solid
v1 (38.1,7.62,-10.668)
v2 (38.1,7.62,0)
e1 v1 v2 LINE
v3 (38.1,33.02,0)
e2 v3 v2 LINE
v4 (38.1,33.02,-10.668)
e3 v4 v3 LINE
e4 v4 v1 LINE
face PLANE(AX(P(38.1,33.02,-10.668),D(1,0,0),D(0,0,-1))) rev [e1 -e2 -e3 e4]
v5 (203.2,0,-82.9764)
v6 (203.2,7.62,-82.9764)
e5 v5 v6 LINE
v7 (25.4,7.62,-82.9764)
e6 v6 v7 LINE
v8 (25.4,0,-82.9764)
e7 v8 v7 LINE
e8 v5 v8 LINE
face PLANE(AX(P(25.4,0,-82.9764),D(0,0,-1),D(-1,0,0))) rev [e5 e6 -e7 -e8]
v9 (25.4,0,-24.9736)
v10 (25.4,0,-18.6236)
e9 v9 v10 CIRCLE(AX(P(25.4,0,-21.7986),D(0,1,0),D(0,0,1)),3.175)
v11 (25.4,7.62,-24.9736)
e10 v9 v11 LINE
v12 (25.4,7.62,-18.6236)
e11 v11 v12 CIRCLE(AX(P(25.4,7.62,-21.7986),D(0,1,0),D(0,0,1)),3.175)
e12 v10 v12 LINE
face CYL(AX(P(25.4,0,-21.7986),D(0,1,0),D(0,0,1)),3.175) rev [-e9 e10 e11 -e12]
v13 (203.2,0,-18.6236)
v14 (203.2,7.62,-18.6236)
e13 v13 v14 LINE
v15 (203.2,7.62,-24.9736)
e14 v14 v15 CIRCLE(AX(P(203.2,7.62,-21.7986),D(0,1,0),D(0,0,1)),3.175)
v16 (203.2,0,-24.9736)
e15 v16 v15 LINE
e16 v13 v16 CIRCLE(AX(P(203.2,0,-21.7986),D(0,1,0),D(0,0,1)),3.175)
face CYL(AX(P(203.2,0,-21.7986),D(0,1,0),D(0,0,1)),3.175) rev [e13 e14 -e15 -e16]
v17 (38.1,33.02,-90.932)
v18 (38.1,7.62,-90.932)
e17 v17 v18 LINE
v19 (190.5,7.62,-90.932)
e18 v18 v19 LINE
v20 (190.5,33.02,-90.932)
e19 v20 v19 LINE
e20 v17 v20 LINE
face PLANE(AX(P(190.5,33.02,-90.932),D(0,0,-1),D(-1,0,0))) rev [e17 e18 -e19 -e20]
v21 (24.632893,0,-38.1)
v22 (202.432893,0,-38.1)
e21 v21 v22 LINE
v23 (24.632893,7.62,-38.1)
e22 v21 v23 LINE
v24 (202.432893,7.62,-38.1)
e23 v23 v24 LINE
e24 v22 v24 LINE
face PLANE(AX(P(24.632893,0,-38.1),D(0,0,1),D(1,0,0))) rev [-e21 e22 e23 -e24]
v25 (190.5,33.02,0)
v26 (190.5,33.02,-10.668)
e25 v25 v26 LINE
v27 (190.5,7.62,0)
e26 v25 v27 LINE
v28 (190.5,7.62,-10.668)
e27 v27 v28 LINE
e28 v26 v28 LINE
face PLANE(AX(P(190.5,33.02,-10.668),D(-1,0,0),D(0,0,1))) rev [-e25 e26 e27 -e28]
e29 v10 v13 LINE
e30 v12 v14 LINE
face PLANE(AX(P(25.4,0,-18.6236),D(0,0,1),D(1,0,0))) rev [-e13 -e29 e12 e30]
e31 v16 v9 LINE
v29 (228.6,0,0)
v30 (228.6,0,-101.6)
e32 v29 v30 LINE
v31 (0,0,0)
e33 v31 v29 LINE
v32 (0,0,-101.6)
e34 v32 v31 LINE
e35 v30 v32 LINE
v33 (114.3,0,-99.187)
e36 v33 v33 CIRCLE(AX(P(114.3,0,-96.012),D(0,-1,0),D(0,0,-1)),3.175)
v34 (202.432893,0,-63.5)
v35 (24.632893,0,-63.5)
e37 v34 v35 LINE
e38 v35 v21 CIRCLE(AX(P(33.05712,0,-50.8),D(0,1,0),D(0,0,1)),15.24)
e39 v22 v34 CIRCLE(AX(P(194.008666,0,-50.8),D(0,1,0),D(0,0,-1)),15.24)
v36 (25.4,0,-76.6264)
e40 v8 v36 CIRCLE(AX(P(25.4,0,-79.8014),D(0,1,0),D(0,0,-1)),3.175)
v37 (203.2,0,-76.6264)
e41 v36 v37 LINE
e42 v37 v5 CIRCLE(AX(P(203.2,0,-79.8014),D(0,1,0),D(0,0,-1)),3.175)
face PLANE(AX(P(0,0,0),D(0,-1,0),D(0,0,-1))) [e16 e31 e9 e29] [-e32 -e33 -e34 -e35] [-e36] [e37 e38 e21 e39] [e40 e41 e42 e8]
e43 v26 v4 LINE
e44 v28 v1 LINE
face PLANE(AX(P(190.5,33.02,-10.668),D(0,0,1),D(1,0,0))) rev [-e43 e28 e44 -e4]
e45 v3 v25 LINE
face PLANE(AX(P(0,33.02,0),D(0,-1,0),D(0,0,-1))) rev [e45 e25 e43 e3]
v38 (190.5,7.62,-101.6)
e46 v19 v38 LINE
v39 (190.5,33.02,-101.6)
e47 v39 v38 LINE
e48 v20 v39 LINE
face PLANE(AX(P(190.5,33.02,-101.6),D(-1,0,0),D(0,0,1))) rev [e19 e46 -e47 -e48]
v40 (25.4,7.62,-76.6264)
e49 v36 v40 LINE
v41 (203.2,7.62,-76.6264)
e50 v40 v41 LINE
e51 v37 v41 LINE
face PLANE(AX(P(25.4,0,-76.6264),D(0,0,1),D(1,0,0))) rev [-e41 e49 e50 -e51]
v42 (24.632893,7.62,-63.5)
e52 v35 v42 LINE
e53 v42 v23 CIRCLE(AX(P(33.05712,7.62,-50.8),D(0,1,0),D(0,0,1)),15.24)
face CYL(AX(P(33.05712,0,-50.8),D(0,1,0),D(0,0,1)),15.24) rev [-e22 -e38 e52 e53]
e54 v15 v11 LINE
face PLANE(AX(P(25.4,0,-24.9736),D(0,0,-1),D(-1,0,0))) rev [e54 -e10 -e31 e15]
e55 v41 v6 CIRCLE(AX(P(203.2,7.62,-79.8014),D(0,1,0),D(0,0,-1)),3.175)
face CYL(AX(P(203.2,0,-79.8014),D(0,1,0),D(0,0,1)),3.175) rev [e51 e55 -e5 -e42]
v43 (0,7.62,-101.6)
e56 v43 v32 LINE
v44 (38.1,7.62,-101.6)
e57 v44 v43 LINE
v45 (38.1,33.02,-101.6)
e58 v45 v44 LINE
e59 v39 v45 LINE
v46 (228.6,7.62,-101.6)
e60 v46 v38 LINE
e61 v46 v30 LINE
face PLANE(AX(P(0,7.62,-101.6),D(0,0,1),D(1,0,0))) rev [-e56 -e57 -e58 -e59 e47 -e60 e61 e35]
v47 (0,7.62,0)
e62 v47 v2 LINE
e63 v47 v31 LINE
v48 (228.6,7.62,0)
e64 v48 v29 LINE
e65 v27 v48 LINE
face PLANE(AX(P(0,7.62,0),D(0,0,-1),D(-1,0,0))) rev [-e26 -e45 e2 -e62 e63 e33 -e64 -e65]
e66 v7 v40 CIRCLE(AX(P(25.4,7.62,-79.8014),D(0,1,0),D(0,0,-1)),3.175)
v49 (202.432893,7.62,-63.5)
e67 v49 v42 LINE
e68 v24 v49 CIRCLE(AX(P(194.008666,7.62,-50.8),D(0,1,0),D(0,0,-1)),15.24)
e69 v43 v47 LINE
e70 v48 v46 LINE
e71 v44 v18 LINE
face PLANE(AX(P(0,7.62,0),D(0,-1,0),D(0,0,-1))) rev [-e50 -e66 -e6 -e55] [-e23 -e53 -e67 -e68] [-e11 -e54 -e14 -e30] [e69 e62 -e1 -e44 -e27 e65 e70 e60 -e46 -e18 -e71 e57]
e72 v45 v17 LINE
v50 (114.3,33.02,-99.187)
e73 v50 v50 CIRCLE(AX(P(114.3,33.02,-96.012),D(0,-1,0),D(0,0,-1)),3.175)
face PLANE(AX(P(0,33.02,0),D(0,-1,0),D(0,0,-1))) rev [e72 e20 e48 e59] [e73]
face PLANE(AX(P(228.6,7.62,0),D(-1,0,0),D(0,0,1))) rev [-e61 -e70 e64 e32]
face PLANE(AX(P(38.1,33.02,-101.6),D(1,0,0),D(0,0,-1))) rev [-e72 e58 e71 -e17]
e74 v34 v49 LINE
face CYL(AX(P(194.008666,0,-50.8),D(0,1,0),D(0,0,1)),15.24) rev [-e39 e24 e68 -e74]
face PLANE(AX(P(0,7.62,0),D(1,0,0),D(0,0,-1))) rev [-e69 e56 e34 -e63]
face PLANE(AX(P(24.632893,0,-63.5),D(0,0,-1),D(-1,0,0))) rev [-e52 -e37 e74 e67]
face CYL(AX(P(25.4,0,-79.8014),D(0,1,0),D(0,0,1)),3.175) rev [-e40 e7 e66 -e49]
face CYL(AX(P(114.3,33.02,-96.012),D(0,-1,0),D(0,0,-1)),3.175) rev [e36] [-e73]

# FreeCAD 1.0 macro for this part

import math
import FreeCAD as App
import Part
import Sketcher
from FreeCAD import Vector
Q = App.Units.Quantity


def add_polygon(sketch, points):
    """Adds a closed chain of lines whose ends are joined by coincident constraints."""
    first, n = sketch.GeometryCount, len(points)
    for a, b in zip(points, points[1:] + points[:1]):
        sketch.addGeometry(Part.LineSegment(App.Vector(*a, 0), App.Vector(*b, 0)), False)
    for i in range(n):
        sketch.addConstraint(Sketcher.Constraint("Coincident", first + i, 2, first + (i + 1) % n, 1))

doc = App.newDocument("Part")
body = doc.addObject("PartDesign::Body", "Body")

sketch1 = body.newObject("Sketcher::SketchObject", "Sketch")
sketch1.AttachmentSupport = (doc.getObject("XZ_Plane"), [""])
sketch1.MapMode = "FlatFace"
add_polygon(sketch1, [(0, -101.6), (0, 0), (228.6, 0), (228.6, -101.6)])
sketch1.addConstraint([
    Sketcher.Constraint("Vertical", 0),
    Sketcher.Constraint("Horizontal", 1),
    Sketcher.Constraint("Vertical", 2),
    Sketcher.Constraint("Horizontal", 3),
    Sketcher.Constraint("Coincident", 0, 2, -1, 1),
    Sketcher.Constraint("DistanceX", 1, 1, 1, 2, Q("9 in")),
    Sketcher.Constraint("DistanceY", 0, 1, 0, 2, Q("4 in")),
])
pad1 = body.newObject("PartDesign::Pad", "Pad")
pad1.Profile = sketch1
pad1.Length = Q("0.3 in")
pad1.Reversed = True

sketch2 = body.newObject("Sketcher::SketchObject", "Sketch001")
sketch2.AttachmentSupport = (doc.getObject("XZ_Plane"), [""])
sketch2.MapMode = "FlatFace"
sketch2.AttachmentOffset = App.Placement(Vector(0, 0, -0.3 * 25.4), App.Rotation())
add_polygon(sketch2, [(38.1, -10.668), (38.1, 0), (190.5, 0), (190.5, -10.668)])
add_polygon(sketch2, [(38.1, -101.6), (38.1, -90.932), (190.5, -90.932), (190.5, -101.6)])
sketch2.addConstraint([
    Sketcher.Constraint("Vertical", 0),
    Sketcher.Constraint("Horizontal", 1),
    Sketcher.Constraint("Vertical", 2),
    Sketcher.Constraint("Horizontal", 3),
    Sketcher.Constraint("Vertical", 4),
    Sketcher.Constraint("Horizontal", 5),
    Sketcher.Constraint("Vertical", 6),
    Sketcher.Constraint("Horizontal", 7),
    Sketcher.Constraint("PointOnObject", 0, 2, -1),
    Sketcher.Constraint("Vertical", 3, 2, 4, 2),
    Sketcher.Constraint("Vertical", 2, 2, 5, 2),
    Sketcher.Constraint("Equal", 2, 4),
    Sketcher.Constraint("DistanceX", 1, 1, 1, 2, Q("6 in")),
    Sketcher.Constraint("DistanceY", 6, 2, -1, 1, Q("4 in")),
    Sketcher.Constraint("DistanceY", 0, 1, 0, 2, Q("0.42 in")),
    Sketcher.Constraint("DistanceX", -1, 1, 0, 2, Q("1.5 in")),
])
pad2 = body.newObject("PartDesign::Pad", "Pad001")
pad2.Profile = sketch2
pad2.Length = Q("1 in")
pad2.Reversed = True

sketch3 = body.newObject("Sketcher::SketchObject", "Sketch002")
sketch3.AttachmentSupport = (doc.getObject("XZ_Plane"), [""])
sketch3.MapMode = "FlatFace"
sketch3.AttachmentOffset = App.Placement(Vector(0, 0, -0.3 * 25.4), App.Rotation())
sketch3.addGeometry([
    Part.LineSegment(Vector(203.2, -24.9736, 0), Vector(25.4, -24.9736, 0)),
    Part.ArcOfCircle(Part.Circle(Vector(25.4, -21.7986, 0), Vector(0, 0, 1), 3.175), math.radians(90), math.radians(270)),
    Part.LineSegment(Vector(25.4, -18.6236, 0), Vector(203.2, -18.6236, 0)),
    Part.ArcOfCircle(Part.Circle(Vector(203.2, -21.7986, 0), Vector(0, 0, 1), 3.175), math.radians(-90), math.radians(90)),
    Part.LineSegment(Vector(25.4, -76.6264, 0), Vector(203.2, -76.6264, 0)),
    Part.ArcOfCircle(Part.Circle(Vector(203.2, -79.8014, 0), Vector(0, 0, 1), 3.175), math.radians(-90), math.radians(90)),
    Part.LineSegment(Vector(203.2, -82.9764, 0), Vector(25.4, -82.9764, 0)),
    Part.ArcOfCircle(Part.Circle(Vector(25.4, -79.8014, 0), Vector(0, 0, 1), 3.175), math.radians(90), math.radians(270)),
], False)
sketch3.addConstraint([
    Sketcher.Constraint("Tangent", 0, 2, 1, 2),
    Sketcher.Constraint("Tangent", 1, 1, 2, 1),
    Sketcher.Constraint("Tangent", 2, 2, 3, 2),
    Sketcher.Constraint("Tangent", 3, 1, 0, 1),
    Sketcher.Constraint("Tangent", 4, 2, 5, 2),
    Sketcher.Constraint("Tangent", 5, 1, 6, 1),
    Sketcher.Constraint("Tangent", 6, 2, 7, 2),
    Sketcher.Constraint("Tangent", 7, 1, 4, 1),
    Sketcher.Constraint("Horizontal", 0),
    Sketcher.Constraint("Horizontal", 2),
    Sketcher.Constraint("Horizontal", 4),
    Sketcher.Constraint("Horizontal", 6),
    Sketcher.Constraint("Equal", 3, 5),
    Sketcher.Constraint("Vertical", 3, 3, 5, 3),
    Sketcher.Constraint("Vertical", 1, 3, 7, 3),
    Sketcher.Constraint("DistanceX", 0, 2, 0, 1, Q("7 in")),
    Sketcher.Constraint("DistanceX", -1, 1, 1, 3, Q("1 in")),
    Sketcher.Constraint("Radius", 1, Q("0.125 in")),
    Sketcher.Constraint("DistanceY", 1, 3, -1, 1, Q("21.7986 mm")),
    Sketcher.Constraint("DistanceY", 5, 3, -1, 1, Q("79.8014 mm")),
])
pocket1 = body.newObject("PartDesign::Pocket", "Pocket")
pocket1.Profile = sketch3
pocket1.Type = "ThroughAll"
pocket1.Reversed = True

sketch4 = body.newObject("Sketcher::SketchObject", "Sketch003")
sketch4.AttachmentSupport = (doc.getObject("XZ_Plane"), [""])
sketch4.MapMode = "FlatFace"
sketch4.AttachmentOffset = App.Placement(Vector(0, 0, -0.3 * 25.4), App.Rotation())
sketch4.addGeometry([
    Part.LineSegment(Vector(202.432893, -63.5, 0), Vector(24.632893, -63.5, 0)),
    Part.ArcOfCircle(Part.Circle(Vector(33.05712, -50.8, 0), Vector(0, 0, 1), 15.24), math.radians(123.55731), math.radians(236.44269)),
    Part.LineSegment(Vector(24.632893, -38.1, 0), Vector(202.432893, -38.1, 0)),
    Part.ArcOfCircle(Part.Circle(Vector(194.008666, -50.8, 0), Vector(0, 0, 1), 15.24), math.radians(-56.44269), math.radians(56.44269)),
], False)
sketch4.addConstraint([
    Sketcher.Constraint("Coincident", 0, 2, 1, 2),
    Sketcher.Constraint("Coincident", 1, 1, 2, 1),
    Sketcher.Constraint("Coincident", 2, 2, 3, 2),
    Sketcher.Constraint("Coincident", 3, 1, 0, 1),
    Sketcher.Constraint("Horizontal", 0),
    Sketcher.Constraint("Horizontal", 2),
    Sketcher.Constraint("Equal", 1, 3),
    Sketcher.Constraint("Horizontal", 1, 3, 3, 3),
    Sketcher.Constraint("Vertical", 0, 2, 1, 1),
    Sketcher.Constraint("Radius", 1, Q("0.6 in")),
    Sketcher.Constraint("DistanceX", 0, 2, 0, 1, Q("7 in")),
    Sketcher.Constraint("DistanceY", 1, 3, -1, 1, Q("2 in")),
    Sketcher.Constraint("DistanceY", 0, 2, 1, 1, Q("1 in")),
    Sketcher.Constraint("DistanceX", -1, 1, 1, 3, Q("33.05712 mm")),
])
pocket2 = body.newObject("PartDesign::Pocket", "Pocket001")
pocket2.Profile = sketch4
pocket2.Type = "ThroughAll"
pocket2.Reversed = True

sketch5 = body.newObject("Sketcher::SketchObject", "Sketch004")
sketch5.AttachmentSupport = (doc.getObject("XZ_Plane"), [""])
sketch5.MapMode = "FlatFace"
sketch5.addGeometry(Part.Circle(Vector(114.3, -96.012, 0), Vector(0, 0, 1), 3.175), False)
sketch5.addConstraint([
    Sketcher.Constraint("Diameter", 0, Q("0.25 in")),
    Sketcher.Constraint("DistanceX", -1, 1, 0, 3, Q("4.5 in")),
    Sketcher.Constraint("DistanceY", 0, 3, -1, 1, Q("3.78 in")),
])
pocket3 = body.newObject("PartDesign::Pocket", "Pocket002")
pocket3.Profile = sketch5
pocket3.Type = "ThroughAll"

doc.recompute()
